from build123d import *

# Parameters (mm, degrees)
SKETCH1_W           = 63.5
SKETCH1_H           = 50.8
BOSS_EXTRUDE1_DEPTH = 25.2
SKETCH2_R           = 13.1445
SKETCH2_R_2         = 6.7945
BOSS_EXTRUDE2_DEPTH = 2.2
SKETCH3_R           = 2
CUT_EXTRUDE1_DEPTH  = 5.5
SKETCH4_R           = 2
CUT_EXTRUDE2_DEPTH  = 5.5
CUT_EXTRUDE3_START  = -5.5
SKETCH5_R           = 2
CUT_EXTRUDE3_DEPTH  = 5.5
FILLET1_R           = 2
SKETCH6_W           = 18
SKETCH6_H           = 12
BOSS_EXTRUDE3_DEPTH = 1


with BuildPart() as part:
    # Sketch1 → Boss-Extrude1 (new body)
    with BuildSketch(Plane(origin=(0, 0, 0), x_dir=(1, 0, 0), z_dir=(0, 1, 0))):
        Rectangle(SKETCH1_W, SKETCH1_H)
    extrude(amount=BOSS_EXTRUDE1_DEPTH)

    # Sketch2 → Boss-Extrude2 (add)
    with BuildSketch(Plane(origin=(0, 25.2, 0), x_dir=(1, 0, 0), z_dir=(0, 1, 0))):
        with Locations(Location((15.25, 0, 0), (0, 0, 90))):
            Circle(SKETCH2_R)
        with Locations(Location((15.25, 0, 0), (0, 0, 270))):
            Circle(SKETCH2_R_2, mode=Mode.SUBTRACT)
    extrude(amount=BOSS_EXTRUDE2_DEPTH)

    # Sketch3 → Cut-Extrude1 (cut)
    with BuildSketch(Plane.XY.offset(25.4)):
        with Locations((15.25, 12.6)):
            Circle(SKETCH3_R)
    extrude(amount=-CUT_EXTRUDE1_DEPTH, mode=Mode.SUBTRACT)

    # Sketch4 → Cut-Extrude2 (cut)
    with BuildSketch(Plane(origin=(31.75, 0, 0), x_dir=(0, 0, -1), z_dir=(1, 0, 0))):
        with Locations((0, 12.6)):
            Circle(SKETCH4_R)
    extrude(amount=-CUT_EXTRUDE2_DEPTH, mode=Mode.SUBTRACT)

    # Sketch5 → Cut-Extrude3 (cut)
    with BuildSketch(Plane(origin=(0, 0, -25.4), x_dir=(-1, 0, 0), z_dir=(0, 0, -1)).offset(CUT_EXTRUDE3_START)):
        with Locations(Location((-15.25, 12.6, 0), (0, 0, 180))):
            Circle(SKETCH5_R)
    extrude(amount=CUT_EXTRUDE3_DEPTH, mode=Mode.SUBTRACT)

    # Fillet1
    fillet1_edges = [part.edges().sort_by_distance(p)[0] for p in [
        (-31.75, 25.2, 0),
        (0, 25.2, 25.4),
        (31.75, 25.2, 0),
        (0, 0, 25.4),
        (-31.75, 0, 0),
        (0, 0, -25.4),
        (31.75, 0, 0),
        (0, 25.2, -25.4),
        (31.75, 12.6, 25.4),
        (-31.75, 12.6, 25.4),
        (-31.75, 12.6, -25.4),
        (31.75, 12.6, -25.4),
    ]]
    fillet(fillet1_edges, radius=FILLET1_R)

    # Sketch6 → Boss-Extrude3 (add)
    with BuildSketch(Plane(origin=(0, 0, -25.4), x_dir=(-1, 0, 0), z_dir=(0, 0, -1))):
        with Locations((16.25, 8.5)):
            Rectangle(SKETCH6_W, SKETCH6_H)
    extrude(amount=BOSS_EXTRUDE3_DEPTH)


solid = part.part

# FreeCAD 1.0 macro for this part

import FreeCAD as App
import Part
import Sketcher
from FreeCAD import Vector


def edges_at(feature, points):
    """Names of the edges that pass closest to the given points."""
    edges = feature.Shape.Edges
    near = lambda p: min(range(len(edges)), key=lambda i: edges[i].distToShape(Part.Vertex(*p))[0])
    return sorted({f"Edge{near(p) + 1}" for p in points})

doc = App.newDocument("Part")
params = doc.addObject("Spreadsheet::Sheet", "Params")
for row, (alias, value) in enumerate([
    ("sketch1_width", "63.5 mm"),
    ("sketch1_height", "50.8 mm"),
    ("pad1_length", "25.2 mm"),
    ("pad2_length", "2.2 mm"),
    ("sketch3_diameter", "4 mm"),
    ("pocket1_length", "5.5 mm"),
    ("sketch4_diameter", "4 mm"),
    ("pocket2_length", "5.5 mm"),
    ("sketch5_diameter", "4 mm"),
    ("pocket3_length", "5.5 mm"),
    ("fillet_radius", "2 mm"),
    ("sketch6_width", "18 mm"),
    ("sketch6_height", "12 mm"),
    ("pad3_length", "1 mm"),
], start=1):
    params.set(f"A{row}", alias)
    params.set(f"B{row}", "=" + value)
    params.setAlias(f"B{row}", alias)

body = doc.addObject("PartDesign::Body", "Body")

sketch1 = doc.addObject("Sketcher::SketchObject", "Sketch")
body.addObject(sketch1)
sketch1.AttachmentSupport = (doc.XZ_Plane, [""])
sketch1.MapMode = "FlatFace"
sketch1.addGeometry(Part.LineSegment(Vector(-31.75, -25.4, 0), Vector(-31.75, 25.4, 0)), False)
sketch1.addGeometry(Part.LineSegment(Vector(-31.75, 25.4, 0), Vector(31.75, 25.4, 0)), False)
sketch1.addGeometry(Part.LineSegment(Vector(31.75, 25.4, 0), Vector(31.75, -25.4, 0)), False)
sketch1.addGeometry(Part.LineSegment(Vector(31.75, -25.4, 0), Vector(-31.75, -25.4, 0)), False)
sketch1.addConstraint(Sketcher.Constraint("Coincident", 0, 2, 1, 1))
sketch1.addConstraint(Sketcher.Constraint("Coincident", 1, 2, 2, 1))
sketch1.addConstraint(Sketcher.Constraint("Coincident", 2, 2, 3, 1))
sketch1.addConstraint(Sketcher.Constraint("Coincident", 3, 2, 0, 1))
sketch1.addConstraint(Sketcher.Constraint("Vertical", 0))
sketch1.addConstraint(Sketcher.Constraint("Horizontal", 1))
sketch1.addConstraint(Sketcher.Constraint("Vertical", 2))
sketch1.addConstraint(Sketcher.Constraint("Horizontal", 3))
sketch1.addConstraint(Sketcher.Constraint("Symmetric", 0, 2, 2, 2, -1, 1))
sketch1.addConstraint(Sketcher.Constraint("DistanceX", 1, 1, 1, 2, 63.5))
sketch1.addConstraint(Sketcher.Constraint("DistanceY", 0, 1, 0, 2, 50.8))
sketch1.setExpression("Constraints[9]", "Params.sketch1_width")
sketch1.setExpression("Constraints[10]", "Params.sketch1_height")
pad1 = doc.addObject("PartDesign::Pad", "Pad")
body.addObject(pad1)
pad1.Profile = sketch1
pad1.setExpression("Length", "Params.pad1_length")
pad1.Reversed = True

sketch2 = doc.addObject("Sketcher::SketchObject", "Sketch001")
body.addObject(sketch2)
sketch2.AttachmentSupport = (doc.XZ_Plane, [""])
sketch2.MapMode = "FlatFace"
sketch2.AttachmentOffset = App.Placement(Vector(0, 0, -25.2), App.Rotation())
sketch2.addGeometry(Part.Circle(Vector(15.25, 0, 0), Vector(0, 0, 1), 13.1445), False)
sketch2.addGeometry(Part.Circle(Vector(15.25, 0, 0), Vector(0, 0, 1), 6.7945), False)
sketch2.addConstraint(Sketcher.Constraint("Coincident", 1, 3, 0, 3))
sketch2.addConstraint(Sketcher.Constraint("PointOnObject", 0, 3, -1))
sketch2.addConstraint(Sketcher.Constraint("Diameter", 0, 26.289))
sketch2.addConstraint(Sketcher.Constraint("Diameter", 1, 13.589))
sketch2.addConstraint(Sketcher.Constraint("DistanceX", -1, 1, 0, 3, 15.25))
pad2 = doc.addObject("PartDesign::Pad", "Pad001")
body.addObject(pad2)
pad2.Profile = sketch2
pad2.setExpression("Length", "Params.pad2_length")
pad2.Reversed = True

sketch3 = doc.addObject("Sketcher::SketchObject", "Sketch002")
body.addObject(sketch3)
sketch3.AttachmentSupport = (doc.XY_Plane, [""])
sketch3.MapMode = "FlatFace"
sketch3.AttachmentOffset = App.Placement(Vector(0, 0, 25.4), App.Rotation())
sketch3.addGeometry(Part.Circle(Vector(15.25, 12.6, 0), Vector(0, 0, 1), 2), False)
sketch3.addConstraint(Sketcher.Constraint("Diameter", 0, 4.0))
sketch3.addConstraint(Sketcher.Constraint("DistanceY", -1, 1, 0, 3, 12.6))
sketch3.addConstraint(Sketcher.Constraint("DistanceX", -1, 1, 0, 3, 15.25))
sketch3.setExpression("Constraints[0]", "Params.sketch3_diameter")
pocket1 = doc.addObject("PartDesign::Pocket", "Pocket")
body.addObject(pocket1)
pocket1.Profile = sketch3
pocket1.setExpression("Length", "Params.pocket1_length")

sketch4 = doc.addObject("Sketcher::SketchObject", "Sketch003")
body.addObject(sketch4)
sketch4.AttachmentSupport = (doc.YZ_Plane, [""])
sketch4.MapMode = "FlatFace"
sketch4.AttachmentOffset = App.Placement(Vector(0, 0, 31.75), App.Rotation())
sketch4.addGeometry(Part.Circle(Vector(12.6, 0, 0), Vector(0, 0, 1), 2), False)
sketch4.addConstraint(Sketcher.Constraint("PointOnObject", 0, 3, -1))
sketch4.addConstraint(Sketcher.Constraint("Diameter", 0, 4.0))
sketch4.addConstraint(Sketcher.Constraint("DistanceX", -1, 1, 0, 3, 12.6))
sketch4.setExpression("Constraints[1]", "Params.sketch4_diameter")
pocket2 = doc.addObject("PartDesign::Pocket", "Pocket001")
body.addObject(pocket2)
pocket2.Profile = sketch4
pocket2.setExpression("Length", "Params.pocket2_length")

sketch5 = doc.addObject("Sketcher::SketchObject", "Sketch004")
body.addObject(sketch5)
sketch5.AttachmentSupport = (doc.XY_Plane, [""])
sketch5.MapMode = "FlatFace"
sketch5.AttachmentOffset = App.Placement(Vector(0, 0, -19.9), App.Rotation())
sketch5.addGeometry(Part.Circle(Vector(15.25, 12.6, 0), Vector(0, 0, 1), 2), False)
sketch5.addConstraint(Sketcher.Constraint("Diameter", 0, 4.0))
sketch5.addConstraint(Sketcher.Constraint("DistanceY", -1, 1, 0, 3, 12.6))
sketch5.addConstraint(Sketcher.Constraint("DistanceX", -1, 1, 0, 3, 15.25))
sketch5.setExpression("Constraints[0]", "Params.sketch5_diameter")
pocket3 = doc.addObject("PartDesign::Pocket", "Pocket002")
body.addObject(pocket3)
pocket3.Profile = sketch5
pocket3.setExpression("Length", "Params.pocket3_length")
doc.recompute()

fillet = doc.addObject("PartDesign::Fillet", "Fillet")
body.addObject(fillet)
fillet.Base = (pocket3, edges_at(pocket3, [
    (-31.75, 25.2, 0),
    (0, 25.2, 25.4),
    (31.75, 25.2, 0),
    (0, 0, 25.4),
    (-31.75, 0, 0),
    (0, 0, -25.4),
    (31.75, 0, 0),
    (0, 25.2, -25.4),
    (31.75, 12.6, 25.4),
    (-31.75, 12.6, 25.4),
    (-31.75, 12.6, -25.4),
    (31.75, 12.6, -25.4),
]))
fillet.setExpression("Radius", "Params.fillet_radius")

sketch6 = doc.addObject("Sketcher::SketchObject", "Sketch005")
body.addObject(sketch6)
sketch6.AttachmentSupport = (doc.XY_Plane, [""])
sketch6.MapMode = "FlatFace"
sketch6.AttachmentOffset = App.Placement(Vector(0, 0, -25.4), App.Rotation())
sketch6.addGeometry(Part.LineSegment(Vector(-7.25, 14.5, 0), Vector(-7.25, 2.5, 0)), False)
sketch6.addGeometry(Part.LineSegment(Vector(-7.25, 2.5, 0), Vector(-25.25, 2.5, 0)), False)
sketch6.addGeometry(Part.LineSegment(Vector(-25.25, 2.5, 0), Vector(-25.25, 14.5, 0)), False)
sketch6.addGeometry(Part.LineSegment(Vector(-25.25, 14.5, 0), Vector(-7.25, 14.5, 0)), False)
sketch6.addConstraint(Sketcher.Constraint("Coincident", 0, 2, 1, 1))
sketch6.addConstraint(Sketcher.Constraint("Coincident", 1, 2, 2, 1))
sketch6.addConstraint(Sketcher.Constraint("Coincident", 2, 2, 3, 1))
sketch6.addConstraint(Sketcher.Constraint("Coincident", 3, 2, 0, 1))
sketch6.addConstraint(Sketcher.Constraint("Vertical", 0))
sketch6.addConstraint(Sketcher.Constraint("Horizontal", 1))
sketch6.addConstraint(Sketcher.Constraint("Vertical", 2))
sketch6.addConstraint(Sketcher.Constraint("Horizontal", 3))
sketch6.addConstraint(Sketcher.Constraint("DistanceX", 1, 2, 1, 1, 18.0))
sketch6.addConstraint(Sketcher.Constraint("DistanceY", 0, 2, 0, 1, 12.0))
sketch6.addConstraint(Sketcher.Constraint("DistanceY", -1, 1, 0, 2, 2.5))
sketch6.addConstraint(Sketcher.Constraint("DistanceX", 0, 2, -1, 1, 7.25))
sketch6.setExpression("Constraints[8]", "Params.sketch6_width")
sketch6.setExpression("Constraints[9]", "Params.sketch6_height")
pad3 = doc.addObject("PartDesign::Pad", "Pad002")
body.addObject(pad3)
pad3.Profile = sketch6
pad3.setExpression("Length", "Params.pad3_length")
pad3.Reversed = True

doc.recompute()
